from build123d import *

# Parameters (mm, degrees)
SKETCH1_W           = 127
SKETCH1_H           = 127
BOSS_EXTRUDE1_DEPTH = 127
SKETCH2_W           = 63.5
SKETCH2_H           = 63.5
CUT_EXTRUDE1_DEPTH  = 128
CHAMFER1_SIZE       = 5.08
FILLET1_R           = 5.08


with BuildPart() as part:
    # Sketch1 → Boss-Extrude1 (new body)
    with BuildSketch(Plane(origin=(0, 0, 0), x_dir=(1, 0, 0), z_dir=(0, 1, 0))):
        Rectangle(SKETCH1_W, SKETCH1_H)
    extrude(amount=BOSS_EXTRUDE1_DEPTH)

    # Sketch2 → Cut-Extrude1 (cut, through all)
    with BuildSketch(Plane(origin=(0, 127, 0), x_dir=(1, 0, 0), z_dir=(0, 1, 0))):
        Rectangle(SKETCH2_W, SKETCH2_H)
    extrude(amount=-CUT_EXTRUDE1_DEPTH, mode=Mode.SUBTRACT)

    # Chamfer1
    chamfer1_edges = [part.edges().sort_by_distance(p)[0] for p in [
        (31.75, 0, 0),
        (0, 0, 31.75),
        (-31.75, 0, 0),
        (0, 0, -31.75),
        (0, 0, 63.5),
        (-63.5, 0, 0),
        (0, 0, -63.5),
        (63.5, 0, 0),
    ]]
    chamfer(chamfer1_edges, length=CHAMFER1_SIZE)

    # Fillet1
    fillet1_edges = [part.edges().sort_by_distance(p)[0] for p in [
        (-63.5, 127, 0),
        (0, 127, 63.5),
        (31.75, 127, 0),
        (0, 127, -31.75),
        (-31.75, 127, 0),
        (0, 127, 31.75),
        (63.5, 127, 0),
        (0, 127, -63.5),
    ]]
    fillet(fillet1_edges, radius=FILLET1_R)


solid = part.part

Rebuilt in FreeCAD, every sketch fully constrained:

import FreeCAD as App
import Part
import Sketcher

V = App.Vector
Q = App.Units.Quantity


def edges_at(feature, points):
    """Names of the edges that pass closest to the given points."""
    edges = feature.Shape.Edges
    near = lambda p: min(range(len(edges)), key=lambda i: edges[i].distToShape(Part.Vertex(*p))[0])
    return sorted({f"Edge{near(p) + 1}" for p in points})

doc = App.newDocument("Part")
params = doc.addObject("Spreadsheet::Sheet", "Params")
for row, (alias, value) in enumerate([
    ("sketch1_width", "5 in"),
    ("pad1_length", "5 in"),
    ("sketch2_width", "2.5 in"),
    ("chamfer_size", "0.2 in"),
    ("fillet_radius", "0.2 in"),
], start=1):
    params.set(f"A{row}", alias)
    params.set(f"B{row}", "=" + value)
    params.setAlias(f"B{row}", alias)

body = doc.addObject("PartDesign::Body", "Body")

# Sketch on XZ plane
sketch1 = body.newObject("Sketcher::SketchObject", "Sketch")
sketch1.AttachmentSupport = (doc.getObject("XZ_Plane"), [""])
sketch1.MapMode = "FlatFace"
sketch1.addGeometry(Part.LineSegment(V(-64, -64, 0), V(-64, 64, 0)), False)
sketch1.addGeometry(Part.LineSegment(V(-64, 64, 0), V(64, 64, 0)), False)
sketch1.addGeometry(Part.LineSegment(V(64, 64, 0), V(64, -64, 0)), False)
sketch1.addGeometry(Part.LineSegment(V(64, -64, 0), V(-64, -64, 0)), False)
sketch1.addConstraint(Sketcher.Constraint("Coincident", 0, 2, 1, 1))
sketch1.addConstraint(Sketcher.Constraint("Coincident", 1, 2, 2, 1))
sketch1.addConstraint(Sketcher.Constraint("Coincident", 2, 2, 3, 1))
sketch1.addConstraint(Sketcher.Constraint("Coincident", 3, 2, 0, 1))
sketch1.addConstraint(Sketcher.Constraint("Vertical", 0))
sketch1.addConstraint(Sketcher.Constraint("Horizontal", 1))
sketch1.addConstraint(Sketcher.Constraint("Vertical", 2))
sketch1.addConstraint(Sketcher.Constraint("Horizontal", 3))
sketch1.addConstraint(Sketcher.Constraint("Symmetric", 0, 2, 2, 2, -1, 1))
sketch1.addConstraint(Sketcher.Constraint("Equal", 3, 0))
sketch1.addConstraint(Sketcher.Constraint("DistanceX", 1, 1, 1, 2, Q("5 in")))
sketch1.setExpression("Constraints[10]", "Params.sketch1_width")
pad1 = body.newObject("PartDesign::Pad", "Pad")
pad1.Profile = sketch1
pad1.setExpression("Length", "Params.pad1_length")
pad1.Reversed = True

# Sketch on XZ plane
sketch2 = body.newObject("Sketcher::SketchObject", "Sketch001")
sketch2.AttachmentSupport = (doc.getObject("XZ_Plane"), [""])
sketch2.MapMode = "FlatFace"
sketch2.AttachmentOffset = App.Placement(V(0, 0, -5 * 25.4), App.Rotation())
sketch2.addGeometry(Part.LineSegment(V(-32, -32, 0), V(-32, 32, 0)), False)
sketch2.addGeometry(Part.LineSegment(V(-32, 32, 0), V(32, 32, 0)), False)
sketch2.addGeometry(Part.LineSegment(V(32, 32, 0), V(32, -32, 0)), False)
sketch2.addGeometry(Part.LineSegment(V(32, -32, 0), V(-32, -32, 0)), False)
sketch2.addConstraint(Sketcher.Constraint("Coincident", 0, 2, 1, 1))
sketch2.addConstraint(Sketcher.Constraint("Coincident", 1, 2, 2, 1))
sketch2.addConstraint(Sketcher.Constraint("Coincident", 2, 2, 3, 1))
sketch2.addConstraint(Sketcher.Constraint("Coincident", 3, 2, 0, 1))
sketch2.addConstraint(Sketcher.Constraint("Vertical", 0))
sketch2.addConstraint(Sketcher.Constraint("Horizontal", 1))
sketch2.addConstraint(Sketcher.Constraint("Vertical", 2))
sketch2.addConstraint(Sketcher.Constraint("Horizontal", 3))
sketch2.addConstraint(Sketcher.Constraint("Symmetric", 0, 2, 2, 2, -1, 1))
sketch2.addConstraint(Sketcher.Constraint("Equal", 3, 0))
sketch2.addConstraint(Sketcher.Constraint("DistanceX", 1, 1, 1, 2, Q("2.5 in")))
sketch2.setExpression("Constraints[10]", "Params.sketch2_width")
pocket1 = body.newObject("PartDesign::Pocket", "Pocket")
pocket1.Profile = sketch2
pocket1.Type = "ThroughAll"
pocket1.Reversed = True
doc.recompute()

chamfer = body.newObject("PartDesign::Chamfer", "Chamfer")
chamfer.Base = (pocket1, edges_at(pocket1, [
    (31.75, 0, 0),
    (0, 0, 31.75),
    (-31.75, 0, 0),
    (0, 0, -31.75),
    (0, 0, 63.5),
    (-63.5, 0, 0),
    (0, 0, -63.5),
    (63.5, 0, 0),
]))
chamfer.setExpression("Size", "Params.chamfer_size")
doc.recompute()

fillet = body.newObject("PartDesign::Fillet", "Fillet")
fillet.Base = (chamfer, edges_at(chamfer, [
    (-63.5, 127, 0),
    (0, 127, 63.5),
    (31.75, 127, 0),
    (0, 127, -31.75),
    (-31.75, 127, 0),
    (0, 127, 31.75),
    (63.5, 127, 0),
    (0, 127, -63.5),
]))
fillet.setExpression("Radius", "Params.fillet_radius")

doc.recompute()
